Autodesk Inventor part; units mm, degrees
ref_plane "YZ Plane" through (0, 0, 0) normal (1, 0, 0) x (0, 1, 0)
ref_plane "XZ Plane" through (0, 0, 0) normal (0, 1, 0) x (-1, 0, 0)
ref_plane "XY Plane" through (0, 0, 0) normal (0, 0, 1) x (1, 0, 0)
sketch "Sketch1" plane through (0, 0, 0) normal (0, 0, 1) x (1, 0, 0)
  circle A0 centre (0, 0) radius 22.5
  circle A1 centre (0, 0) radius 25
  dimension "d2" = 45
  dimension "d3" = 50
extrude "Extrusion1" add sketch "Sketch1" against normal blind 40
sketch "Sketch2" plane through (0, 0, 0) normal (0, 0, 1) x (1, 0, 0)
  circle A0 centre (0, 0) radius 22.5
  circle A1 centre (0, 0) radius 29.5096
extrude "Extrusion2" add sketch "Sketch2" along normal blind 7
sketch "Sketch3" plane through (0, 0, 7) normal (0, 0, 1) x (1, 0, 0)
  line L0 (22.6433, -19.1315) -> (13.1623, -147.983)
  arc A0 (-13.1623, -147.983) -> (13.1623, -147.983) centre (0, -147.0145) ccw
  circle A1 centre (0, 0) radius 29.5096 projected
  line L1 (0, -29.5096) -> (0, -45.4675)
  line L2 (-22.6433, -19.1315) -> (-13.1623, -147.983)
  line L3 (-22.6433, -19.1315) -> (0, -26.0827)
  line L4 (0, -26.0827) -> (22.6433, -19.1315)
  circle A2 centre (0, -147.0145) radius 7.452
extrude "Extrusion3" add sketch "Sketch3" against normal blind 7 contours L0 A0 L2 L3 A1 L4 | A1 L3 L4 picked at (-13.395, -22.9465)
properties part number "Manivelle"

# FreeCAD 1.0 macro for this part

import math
import FreeCAD as App
import Part
import Sketcher

V = App.Vector
Q = App.Units.Quantity

doc = App.newDocument("Part")
params = doc.addObject("Spreadsheet::Sheet", "Params")
for row, (alias, value) in enumerate([
    ("sketch1_diameter", "50 mm"),
    ("sketch1_diameter2", "45 mm"),
    ("pad1_length", "40 mm"),
    ("sketch2_diameter", "45 mm"),
    ("pad2_length", "7 mm"),
    ("pad3_length", "7 mm"),
], start=1):
    params.set(f"A{row}", alias)
    params.set(f"B{row}", "=" + value)
    params.setAlias(f"B{row}", alias)

body = doc.addObject("PartDesign::Body", "Body")

# Sketch on XY plane
sketch1 = body.newObject("Sketcher::SketchObject", "Sketch")
sketch1.AttachmentSupport = (doc.getObject("XY_Plane"), [""])
sketch1.MapMode = "FlatFace"
sketch1.addGeometry([
    Part.Circle(V(0, 0, 0), V(0, 0, 1), 25),
    Part.Circle(V(0, 0, 0), V(0, 0, 1), 22),
], False)
sketch1.addConstraint([
    Sketcher.Constraint("Coincident", 0, 3, -1, 1),
    Sketcher.Constraint("Coincident", 1, 3, -1, 1),
    Sketcher.Constraint("Diameter", 0, Q("50 mm")),
    Sketcher.Constraint("Diameter", 1, Q("45 mm")),
])
sketch1.setExpression("Constraints[2]", "Params.sketch1_diameter")
sketch1.setExpression("Constraints[3]", "Params.sketch1_diameter2")
pad1 = body.newObject("PartDesign::Pad", "Pad")
pad1.Profile = sketch1
pad1.setExpression("Length", "Params.pad1_length")
pad1.Reversed = True

# Sketch on XY plane
sketch2 = body.newObject("Sketcher::SketchObject", "Sketch001")
sketch2.AttachmentSupport = (doc.getObject("XY_Plane"), [""])
sketch2.MapMode = "FlatFace"
sketch2.addGeometry([
    Part.Circle(V(0, 0, 0), V(0, 0, 1), 30),
    Part.Circle(V(0, 0, 0), V(0, 0, 1), 22),
], False)
sketch2.addConstraint([
    Sketcher.Constraint("Coincident", 0, 3, -1, 1),
    Sketcher.Constraint("Coincident", 1, 3, -1, 1),
    Sketcher.Constraint("Diameter", 1, Q("45 mm")),
    Sketcher.Constraint("Diameter", 0, Q("59.0192 mm")),
])
sketch2.setExpression("Constraints[2]", "Params.sketch2_diameter")
pad2 = body.newObject("PartDesign::Pad", "Pad001")
pad2.Profile = sketch2
pad2.setExpression("Length", "Params.pad2_length")

# Sketch on XY plane
sketch3 = body.newObject("Sketcher::SketchObject", "Sketch002")
sketch3.AttachmentSupport = (doc.getObject("XY_Plane"), [""])
sketch3.MapMode = "FlatFace"
sketch3.AttachmentOffset = App.Placement(V(0, 0, 7), App.Rotation())
sketch3.addGeometry([
    Part.LineSegment(V(13, -148, 0), V(23, -19, 0)),  # 0
    Part.LineSegment(V(23, -19, 0), V(0, -26, 0)),  # 1
    Part.LineSegment(V(0, -26, 0), V(-23, -19, 0)),  # 2
    Part.LineSegment(V(-23, -19, 0), V(-13, -148, 0)),  # 3
    Part.ArcOfCircle(Part.Circle(V(0, -147, 0), V(0, 0, 1), 13), math.radians(-176), math.radians(-4)),  # 4
    Part.Circle(V(0, -147, 0), V(0, 0, 1), 7),  # 5
], False)
sketch3.addConstraint([
    Sketcher.Constraint("Coincident", 0, 2, 1, 1),
    Sketcher.Constraint("Coincident", 1, 2, 2, 1),
    Sketcher.Constraint("Coincident", 2, 2, 3, 1),
    Sketcher.Constraint("Tangent", 3, 2, 4, 1),
    Sketcher.Constraint("Tangent", 4, 2, 0, 1),
    Sketcher.Constraint("Coincident", 5, 3, 4, 3),
    Sketcher.Constraint("Symmetric", 0, 2, 2, 2, -2),
    Sketcher.Constraint("PointOnObject", 4, 3, -2),
    Sketcher.Constraint("PointOnObject", 1, 2, -2),
    Sketcher.Constraint("Diameter", 5, Q("14.904 mm")),
    Sketcher.Constraint("Radius", 4, Q("13.198 mm")),
    Sketcher.Constraint("DistanceY", 3, 2, -1, 1, Q("147.983 mm")),
    Sketcher.Constraint("DistanceY", 4, 3, 0, 2, Q("127.883 mm")),
    Sketcher.Constraint("DistanceX", 2, 2, 3, 2, Q("9.481 mm")),
    Sketcher.Constraint("Distance", 1, Q("23.6862 mm")),
])
pad3 = body.newObject("PartDesign::Pad", "Pad002")
pad3.Profile = sketch3
pad3.setExpression("Length", "Params.pad3_length")
pad3.Reversed = True

doc.recompute()
